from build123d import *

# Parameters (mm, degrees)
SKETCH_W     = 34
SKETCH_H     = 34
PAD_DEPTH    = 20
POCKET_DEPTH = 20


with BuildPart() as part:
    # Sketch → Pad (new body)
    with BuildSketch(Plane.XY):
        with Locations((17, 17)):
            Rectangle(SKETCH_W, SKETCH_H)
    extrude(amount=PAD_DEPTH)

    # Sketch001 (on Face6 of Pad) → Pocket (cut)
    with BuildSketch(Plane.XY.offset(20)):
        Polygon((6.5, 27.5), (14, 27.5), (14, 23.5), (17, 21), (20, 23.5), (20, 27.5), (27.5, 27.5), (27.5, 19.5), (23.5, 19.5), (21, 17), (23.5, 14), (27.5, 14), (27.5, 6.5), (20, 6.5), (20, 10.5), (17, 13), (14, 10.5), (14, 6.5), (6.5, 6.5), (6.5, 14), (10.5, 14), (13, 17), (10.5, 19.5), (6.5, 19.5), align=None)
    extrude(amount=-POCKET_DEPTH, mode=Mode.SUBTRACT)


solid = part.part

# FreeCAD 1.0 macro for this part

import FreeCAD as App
import Part
import Sketcher

V = App.Vector
Q = App.Units.Quantity

doc = App.newDocument("Part")
body = doc.addObject("PartDesign::Body", "Body")

# Sketch on XY plane
sketch1 = doc.addObject("Sketcher::SketchObject", "Sketch")
body.addObject(sketch1)
sketch1.AttachmentSupport = (doc.XY_Plane, [""])
sketch1.MapMode = "FlatFace"
sketch1.addGeometry(Part.LineSegment(V(0, 34, 0), V(0, 0, 0)), False)
sketch1.addGeometry(Part.LineSegment(V(0, 0, 0), V(34, 0, 0)), False)
sketch1.addGeometry(Part.LineSegment(V(34, 0, 0), V(34, 34, 0)), False)
sketch1.addGeometry(Part.LineSegment(V(34, 34, 0), V(0, 34, 0)), False)
sketch1.addConstraint(Sketcher.Constraint("Coincident", 0, 2, 1, 1))
sketch1.addConstraint(Sketcher.Constraint("Coincident", 1, 2, 2, 1))
sketch1.addConstraint(Sketcher.Constraint("Coincident", 2, 2, 3, 1))
sketch1.addConstraint(Sketcher.Constraint("Coincident", 3, 2, 0, 1))
sketch1.addConstraint(Sketcher.Constraint("Vertical", 0))
sketch1.addConstraint(Sketcher.Constraint("Horizontal", 1))
sketch1.addConstraint(Sketcher.Constraint("Vertical", 2))
sketch1.addConstraint(Sketcher.Constraint("Horizontal", 3))
sketch1.addConstraint(Sketcher.Constraint("Coincident", 0, 2, -1, 1))
sketch1.addConstraint(Sketcher.Constraint("Equal", 3, 0))
sketch1.addConstraint(Sketcher.Constraint("DistanceX", 1, 1, 1, 2, Q("34 mm")))
pad1 = doc.addObject("PartDesign::Pad", "Pad")
body.addObject(pad1)
pad1.Profile = sketch1
pad1.Length = 20

# Sketch on XY plane
sketch2 = doc.addObject("Sketcher::SketchObject", "Sketch001")
body.addObject(sketch2)
sketch2.AttachmentSupport = (doc.XY_Plane, [""])
sketch2.MapMode = "FlatFace"
sketch2.AttachmentOffset = App.Placement(V(0, 0, 20), App.Rotation())
sketch2.addGeometry(Part.LineSegment(V(14, 27.5, 0), V(6.5, 27.5, 0)), False)
sketch2.addGeometry(Part.LineSegment(V(6.5, 27.5, 0), V(6.5, 19.5, 0)), False)
sketch2.addGeometry(Part.LineSegment(V(6.5, 19.5, 0), V(10.5, 19.5, 0)), False)
sketch2.addGeometry(Part.LineSegment(V(10.5, 19.5, 0), V(13, 17, 0)), False)
sketch2.addGeometry(Part.LineSegment(V(13, 17, 0), V(10.5, 14, 0)), False)
sketch2.addGeometry(Part.LineSegment(V(10.5, 14, 0), V(6.5, 14, 0)), False)
sketch2.addGeometry(Part.LineSegment(V(6.5, 14, 0), V(6.5, 6.5, 0)), False)
sketch2.addGeometry(Part.LineSegment(V(6.5, 6.5, 0), V(14, 6.5, 0)), False)
sketch2.addGeometry(Part.LineSegment(V(14, 6.5, 0), V(14, 10.5, 0)), False)
sketch2.addGeometry(Part.LineSegment(V(14, 10.5, 0), V(17, 13, 0)), False)
sketch2.addGeometry(Part.LineSegment(V(17, 13, 0), V(20, 10.5, 0)), False)
sketch2.addGeometry(Part.LineSegment(V(20, 10.5, 0), V(20, 6.5, 0)), False)
sketch2.addGeometry(Part.LineSegment(V(20, 6.5, 0), V(27.5, 6.5, 0)), False)
sketch2.addGeometry(Part.LineSegment(V(27.5, 6.5, 0), V(27.5, 14, 0)), False)
sketch2.addGeometry(Part.LineSegment(V(27.5, 14, 0), V(23.5, 14, 0)), False)
sketch2.addGeometry(Part.LineSegment(V(23.5, 14, 0), V(21, 17, 0)), False)
sketch2.addGeometry(Part.LineSegment(V(21, 17, 0), V(23.5, 19.5, 0)), False)
sketch2.addGeometry(Part.LineSegment(V(23.5, 19.5, 0), V(27.5, 19.5, 0)), False)
sketch2.addGeometry(Part.LineSegment(V(27.5, 19.5, 0), V(27.5, 27.5, 0)), False)
sketch2.addGeometry(Part.LineSegment(V(27.5, 27.5, 0), V(20, 27.5, 0)), False)
sketch2.addGeometry(Part.LineSegment(V(20, 27.5, 0), V(20, 23.5, 0)), False)
sketch2.addGeometry(Part.LineSegment(V(20, 23.5, 0), V(17, 21, 0)), False)
sketch2.addGeometry(Part.LineSegment(V(17, 21, 0), V(14, 23.5, 0)), False)
sketch2.addGeometry(Part.LineSegment(V(14, 23.5, 0), V(14, 27.5, 0)), False)
sketch2.addConstraint(Sketcher.Constraint("Coincident", 0, 2, 1, 1))
sketch2.addConstraint(Sketcher.Constraint("Coincident", 1, 2, 2, 1))
sketch2.addConstraint(Sketcher.Constraint("Coincident", 2, 2, 3, 1))
sketch2.addConstraint(Sketcher.Constraint("Coincident", 3, 2, 4, 1))
sketch2.addConstraint(Sketcher.Constraint("Coincident", 4, 2, 5, 1))
sketch2.addConstraint(Sketcher.Constraint("Coincident", 5, 2, 6, 1))
sketch2.addConstraint(Sketcher.Constraint("Coincident", 6, 2, 7, 1))
sketch2.addConstraint(Sketcher.Constraint("Coincident", 7, 2, 8, 1))
sketch2.addConstraint(Sketcher.Constraint("Coincident", 8, 2, 9, 1))
sketch2.addConstraint(Sketcher.Constraint("Coincident", 9, 2, 10, 1))
sketch2.addConstraint(Sketcher.Constraint("Coincident", 10, 2, 11, 1))
sketch2.addConstraint(Sketcher.Constraint("Coincident", 11, 2, 12, 1))
sketch2.addConstraint(Sketcher.Constraint("Coincident", 12, 2, 13, 1))
sketch2.addConstraint(Sketcher.Constraint("Coincident", 13, 2, 14, 1))
sketch2.addConstraint(Sketcher.Constraint("Coincident", 14, 2, 15, 1))
sketch2.addConstraint(Sketcher.Constraint("Coincident", 15, 2, 16, 1))
sketch2.addConstraint(Sketcher.Constraint("Coincident", 16, 2, 17, 1))
sketch2.addConstraint(Sketcher.Constraint("Coincident", 17, 2, 18, 1))
sketch2.addConstraint(Sketcher.Constraint("Coincident", 18, 2, 19, 1))
sketch2.addConstraint(Sketcher.Constraint("Coincident", 19, 2, 20, 1))
sketch2.addConstraint(Sketcher.Constraint("Coincident", 20, 2, 21, 1))
sketch2.addConstraint(Sketcher.Constraint("Coincident", 21, 2, 22, 1))
sketch2.addConstraint(Sketcher.Constraint("Coincident", 22, 2, 23, 1))
sketch2.addConstraint(Sketcher.Constraint("Coincident", 23, 2, 0, 1))
sketch2.addConstraint(Sketcher.Constraint("Horizontal", 0))
sketch2.addConstraint(Sketcher.Constraint("Vertical", 1))
sketch2.addConstraint(Sketcher.Constraint("Horizontal", 2))
sketch2.addConstraint(Sketcher.Constraint("Horizontal", 5))
sketch2.addConstraint(Sketcher.Constraint("Vertical", 6))
sketch2.addConstraint(Sketcher.Constraint("Horizontal", 7))
sketch2.addConstraint(Sketcher.Constraint("Vertical", 8))
sketch2.addConstraint(Sketcher.Constraint("Vertical", 11))
sketch2.addConstraint(Sketcher.Constraint("Horizontal", 12))
sketch2.addConstraint(Sketcher.Constraint("Vertical", 13))
sketch2.addConstraint(Sketcher.Constraint("Horizontal", 14))
sketch2.addConstraint(Sketcher.Constraint("Horizontal", 17))
sketch2.addConstraint(Sketcher.Constraint("Vertical", 18))
sketch2.addConstraint(Sketcher.Constraint("Horizontal", 19))
sketch2.addConstraint(Sketcher.Constraint("Vertical", 20))
sketch2.addConstraint(Sketcher.Constraint("Vertical", 23))
sketch2.addConstraint(Sketcher.Constraint("Perpendicular", 4, 10))
sketch2.addConstraint(Sketcher.Constraint("Perpendicular", 9, 15))
sketch2.addConstraint(Sketcher.Constraint("Perpendicular", 3, 16))
sketch2.addConstraint(Sketcher.Constraint("Perpendicular", 15, 21))
sketch2.addConstraint(Sketcher.Constraint("Parallel", 10, 22))
sketch2.addConstraint(Sketcher.Constraint("Horizontal", 8, 2, 10, 2))
sketch2.addConstraint(Sketcher.Constraint("Horizontal", 7, 2, 11, 2))
sketch2.addConstraint(Sketcher.Constraint("Horizontal", 5, 2, 13, 2))
sketch2.addConstraint(Sketcher.Constraint("Horizontal", 3, 2, 15, 2))
sketch2.addConstraint(Sketcher.Constraint("Horizontal", 2, 2, 16, 2))
sketch2.addConstraint(Sketcher.Constraint("Horizontal", 0, 2, 18, 2))
sketch2.addConstraint(Sketcher.Constraint("Horizontal", 20, 2, 22, 2))
sketch2.addConstraint(Sketcher.Constraint("Vertical", 2, 2, 4, 2))
sketch2.addConstraint(Sketcher.Constraint("Vertical", 1, 2, 5, 2))
sketch2.addConstraint(Sketcher.Constraint("Vertical", 14, 2, 16, 2))
sketch2.addConstraint(Sketcher.Constraint("Vertical", 13, 2, 17, 2))
sketch2.addConstraint(Sketcher.Constraint("Vertical", 11, 2, 19, 2))
sketch2.addConstraint(Sketcher.Constraint("Vertical", 9, 2, 21, 2))
sketch2.addConstraint(Sketcher.Constraint("Vertical", 8, 2, 22, 2))
sketch2.addConstraint(Sketcher.Constraint("Equal", 7, 12))
sketch2.addConstraint(Sketcher.Constraint("Equal", 5, 14))
sketch2.addConstraint(Sketcher.Constraint("Equal", 19, 6))
sketch2.addConstraint(Sketcher.Constraint("Equal", 17, 8))
sketch2.addConstraint(Sketcher.Constraint("Equal", 11, 20))
sketch2.addConstraint(Sketcher.Constraint("Equal", 4, 9))
sketch2.addConstraint(Sketcher.Constraint("DistanceX", 2, 1, 2, 2, Q("4 mm")))
sketch2.addConstraint(Sketcher.Constraint("DistanceY", 1, 2, 1, 1, Q("8 mm")))
sketch2.addConstraint(Sketcher.Constraint("DistanceX", 0, 2, 0, 1, Q("7.5 mm")))
sketch2.addConstraint(Sketcher.Constraint("DistanceX", -1, 1, 3, 2, Q("13 mm")))
sketch2.addConstraint(Sketcher.Constraint("DistanceY", -1, 1, 3, 2, Q("17 mm")))
sketch2.addConstraint(Sketcher.Constraint("DistanceY", -1, 1, 4, 2, Q("14 mm")))
sketch2.addConstraint(Sketcher.Constraint("DistanceX", -1, 1, 7, 2, Q("14 mm")))
pocket1 = doc.addObject("PartDesign::Pocket", "Pocket")
body.addObject(pocket1)
pocket1.Profile = sketch2
pocket1.Length = 20

doc.recompute()
